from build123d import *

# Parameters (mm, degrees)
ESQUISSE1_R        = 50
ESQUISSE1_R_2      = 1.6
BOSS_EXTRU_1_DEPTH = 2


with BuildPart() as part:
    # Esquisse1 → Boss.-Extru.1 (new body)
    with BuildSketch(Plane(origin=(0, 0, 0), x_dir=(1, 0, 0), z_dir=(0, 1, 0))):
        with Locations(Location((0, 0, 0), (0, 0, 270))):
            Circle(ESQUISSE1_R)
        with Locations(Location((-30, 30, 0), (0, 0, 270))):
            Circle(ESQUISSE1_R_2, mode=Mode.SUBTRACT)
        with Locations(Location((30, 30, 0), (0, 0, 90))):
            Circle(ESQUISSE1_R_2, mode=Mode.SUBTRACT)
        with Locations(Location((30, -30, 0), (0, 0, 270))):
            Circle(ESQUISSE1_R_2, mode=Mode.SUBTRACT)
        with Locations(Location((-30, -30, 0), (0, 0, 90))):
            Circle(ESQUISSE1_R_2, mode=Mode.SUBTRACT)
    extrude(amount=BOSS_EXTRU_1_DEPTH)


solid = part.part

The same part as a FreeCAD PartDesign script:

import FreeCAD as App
import Part
import Sketcher
Q = App.Units.Quantity

doc = App.newDocument("Part")
body = doc.addObject("PartDesign::Body", "Body")

sketch1 = doc.addObject("Sketcher::SketchObject", "Sketch")
body.addObject(sketch1)
sketch1.AttachmentSupport = (doc.XZ_Plane, [""])
sketch1.MapMode = "FlatFace"
sketch1.addGeometry([
    Part.Circle(App.Vector(0, 0, 0), App.Vector(0, 0, 1), 50),
    Part.Circle(App.Vector(-30, -30, 0), App.Vector(0, 0, 1), 1.6),
    Part.Circle(App.Vector(-30, 30, 0), App.Vector(0, 0, 1), 1.6),
    Part.Circle(App.Vector(30, -30, 0), App.Vector(0, 0, 1), 1.6),
    Part.Circle(App.Vector(30, 30, 0), App.Vector(0, 0, 1), 1.6),
], False)
sketch1.addConstraint([
    Sketcher.Constraint("Coincident", 0, 3, -1, 1),
    Sketcher.Constraint("Equal", 1, 2),
    Sketcher.Constraint("Equal", 2, 3),
    Sketcher.Constraint("Equal", 3, 4),
    Sketcher.Constraint("Symmetric", 2, 3, 3, 3, -1, 1),
    Sketcher.Constraint("Symmetric", 1, 3, 4, 3, -1, 1),
    Sketcher.Constraint("Symmetric", 1, 3, 3, 3, -2),
    Sketcher.Constraint("Diameter", 0, Q("100 mm")),
    Sketcher.Constraint("Diameter", 1, Q("3.2 mm")),
    Sketcher.Constraint("DistanceX", 1, 3, -1, 1, Q("30 mm")),
    Sketcher.Constraint("DistanceY", 1, 3, -1, 1, Q("30 mm")),
])
pad1 = doc.addObject("PartDesign::Pad", "Pad")
body.addObject(pad1)
pad1.Profile = sketch1
pad1.Length = 2
pad1.Reversed = True

doc.recompute()
